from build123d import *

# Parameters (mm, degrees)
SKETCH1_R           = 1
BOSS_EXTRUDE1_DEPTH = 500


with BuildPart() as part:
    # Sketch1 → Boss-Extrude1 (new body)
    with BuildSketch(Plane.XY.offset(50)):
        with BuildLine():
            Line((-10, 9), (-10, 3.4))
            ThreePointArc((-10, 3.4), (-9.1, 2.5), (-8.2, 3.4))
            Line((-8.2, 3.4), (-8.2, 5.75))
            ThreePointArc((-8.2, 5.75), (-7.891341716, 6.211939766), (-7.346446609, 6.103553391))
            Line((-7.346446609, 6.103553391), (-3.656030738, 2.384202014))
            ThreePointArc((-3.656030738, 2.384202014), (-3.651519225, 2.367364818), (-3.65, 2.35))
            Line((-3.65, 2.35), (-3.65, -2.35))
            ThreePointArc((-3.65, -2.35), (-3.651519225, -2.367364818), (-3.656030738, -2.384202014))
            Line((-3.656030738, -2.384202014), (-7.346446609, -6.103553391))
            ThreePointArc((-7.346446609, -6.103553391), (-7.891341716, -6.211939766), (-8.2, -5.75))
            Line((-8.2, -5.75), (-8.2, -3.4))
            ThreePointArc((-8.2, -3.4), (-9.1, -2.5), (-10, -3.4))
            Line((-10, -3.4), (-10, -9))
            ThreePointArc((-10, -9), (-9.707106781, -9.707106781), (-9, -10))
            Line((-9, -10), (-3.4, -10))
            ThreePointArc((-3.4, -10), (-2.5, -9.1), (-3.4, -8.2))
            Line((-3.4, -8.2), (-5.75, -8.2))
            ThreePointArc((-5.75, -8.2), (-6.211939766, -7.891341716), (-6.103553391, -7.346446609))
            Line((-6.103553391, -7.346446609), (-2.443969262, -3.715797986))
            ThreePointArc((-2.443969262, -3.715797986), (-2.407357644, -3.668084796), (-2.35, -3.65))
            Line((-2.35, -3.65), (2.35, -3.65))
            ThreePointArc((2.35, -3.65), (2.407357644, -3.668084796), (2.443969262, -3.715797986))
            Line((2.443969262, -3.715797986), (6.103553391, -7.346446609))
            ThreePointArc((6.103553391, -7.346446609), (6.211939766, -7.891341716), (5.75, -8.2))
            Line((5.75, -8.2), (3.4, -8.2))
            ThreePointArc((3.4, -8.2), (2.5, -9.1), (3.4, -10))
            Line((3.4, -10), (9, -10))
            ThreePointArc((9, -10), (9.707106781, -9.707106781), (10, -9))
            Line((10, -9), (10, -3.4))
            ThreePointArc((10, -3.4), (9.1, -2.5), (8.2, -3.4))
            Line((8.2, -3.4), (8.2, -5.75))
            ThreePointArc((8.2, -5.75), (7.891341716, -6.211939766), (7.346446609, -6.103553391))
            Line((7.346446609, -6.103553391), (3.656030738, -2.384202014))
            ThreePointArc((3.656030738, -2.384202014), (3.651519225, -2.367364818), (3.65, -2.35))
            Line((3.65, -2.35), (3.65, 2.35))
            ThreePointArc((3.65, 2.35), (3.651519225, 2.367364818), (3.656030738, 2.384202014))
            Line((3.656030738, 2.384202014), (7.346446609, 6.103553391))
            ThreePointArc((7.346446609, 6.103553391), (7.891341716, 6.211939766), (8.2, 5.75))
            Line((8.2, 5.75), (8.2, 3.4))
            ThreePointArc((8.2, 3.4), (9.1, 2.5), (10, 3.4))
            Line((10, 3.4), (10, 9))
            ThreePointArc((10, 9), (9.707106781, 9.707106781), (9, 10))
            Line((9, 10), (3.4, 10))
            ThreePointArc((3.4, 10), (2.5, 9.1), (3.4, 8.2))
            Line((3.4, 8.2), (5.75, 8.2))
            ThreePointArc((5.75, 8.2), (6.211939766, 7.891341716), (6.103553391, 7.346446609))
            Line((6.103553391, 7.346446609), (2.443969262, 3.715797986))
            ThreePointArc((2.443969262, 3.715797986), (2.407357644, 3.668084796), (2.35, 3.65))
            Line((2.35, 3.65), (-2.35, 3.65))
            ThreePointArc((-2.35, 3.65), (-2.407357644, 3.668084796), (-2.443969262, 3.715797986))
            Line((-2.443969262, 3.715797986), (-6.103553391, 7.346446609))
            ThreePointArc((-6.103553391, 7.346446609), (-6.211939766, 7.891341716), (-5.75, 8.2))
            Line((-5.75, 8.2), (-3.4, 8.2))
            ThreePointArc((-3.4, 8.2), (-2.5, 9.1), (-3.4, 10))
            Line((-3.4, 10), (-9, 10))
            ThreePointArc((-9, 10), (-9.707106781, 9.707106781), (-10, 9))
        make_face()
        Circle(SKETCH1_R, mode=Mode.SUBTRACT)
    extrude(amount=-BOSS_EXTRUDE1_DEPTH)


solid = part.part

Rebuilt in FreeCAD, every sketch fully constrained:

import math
import FreeCAD as App
import Part
import Sketcher
from FreeCAD import Vector

doc = App.newDocument("Part")
params = doc.addObject("Spreadsheet::Sheet", "Params")
for row, (alias, value) in enumerate([
    ("sketch1_diameter", "2 mm"),
    ("sketch1_radius", "0.9 mm"),
    ("sketch1_radius2", "0.5 mm"),
    ("sketch1_radius3", "0.1 mm"),
    ("sketch1_width", "5.6 mm"),
    ("pad1_length", "500 mm"),
], start=1):
    params.set(f"A{row}", alias)
    params.set(f"B{row}", "=" + value)
    params.setAlias(f"B{row}", alias)

body = doc.addObject("PartDesign::Body", "Body")

# Sketch on XY plane
sketch1 = body.newObject("Sketcher::SketchObject", "Sketch")
sketch1.AttachmentSupport = (doc.getObject("XY_Plane"), [""])
sketch1.MapMode = "FlatFace"
sketch1.AttachmentOffset = App.Placement(Vector(0, 0, 50), App.Rotation())
sketch1.addGeometry([
    Part.LineSegment(Vector(-10, 9, 0), Vector(-10, 3.4, 0)),  # 0
    Part.ArcOfCircle(Part.Circle(Vector(-9.1, 3.4, 0), Vector(0, 0, 1), 0.9), math.radians(180), math.radians(360)),  # 1
    Part.LineSegment(Vector(-8.2, 3.4, 0), Vector(-8.2, 5.75, 0)),  # 2
    Part.ArcOfCircle(Part.Circle(Vector(-7.7, 5.75, 0), Vector(0, 0, 1), 0.5), math.radians(45), math.radians(180)),  # 3
    Part.LineSegment(Vector(-7.346447, 6.103553, 0), Vector(-3.656031, 2.384202, 0)),  # 4
    Part.ArcOfCircle(Part.Circle(Vector(-3.75, 2.35, 0), Vector(0, 0, 1), 0.1), math.radians(0.000001), math.radians(19.999999)),  # 5
    Part.LineSegment(Vector(-3.65, 2.35, 0), Vector(-3.65, -2.35, 0)),  # 6
    Part.ArcOfCircle(Part.Circle(Vector(-3.75, -2.35, 0), Vector(0, 0, 1), 0.1), math.radians(-19.999999), math.radians(-0.000001)),  # 7
    Part.LineSegment(Vector(-3.656031, -2.384202, 0), Vector(-7.346447, -6.103553, 0)),  # 8
    Part.ArcOfCircle(Part.Circle(Vector(-7.7, -5.75, 0), Vector(0, 0, 1), 0.5), math.radians(-180), math.radians(-45)),  # 9
    Part.LineSegment(Vector(-8.2, -5.75, 0), Vector(-8.2, -3.4, 0)),  # 10
    Part.ArcOfCircle(Part.Circle(Vector(-9.1, -3.4, 0), Vector(0, 0, 1), 0.9), math.radians(0), math.radians(180)),  # 11
    Part.LineSegment(Vector(-10, -3.4, 0), Vector(-10, -9, 0)),  # 12
    Part.ArcOfCircle(Part.Circle(Vector(-9, -9, 0), Vector(0, 0, 1), 1), math.radians(-180), math.radians(-90)),  # 13
    Part.LineSegment(Vector(-9, -10, 0), Vector(-3.4, -10, 0)),  # 14
    Part.ArcOfCircle(Part.Circle(Vector(-3.4, -9.1, 0), Vector(0, 0, 1), 0.9), math.radians(-90), math.radians(90)),  # 15
    Part.LineSegment(Vector(-3.4, -8.2, 0), Vector(-5.75, -8.2, 0)),  # 16
    Part.ArcOfCircle(Part.Circle(Vector(-5.75, -7.7, 0), Vector(0, 0, 1), 0.5), math.radians(135), math.radians(270)),  # 17
    Part.LineSegment(Vector(-6.103553, -7.346447, 0), Vector(-2.443969, -3.715798, 0)),  # 18
    Part.ArcOfCircle(Part.Circle(Vector(-2.35, -3.75, 0), Vector(0, 0, 1), 0.1), math.radians(90), math.radians(160)),  # 19
    Part.LineSegment(Vector(-2.35, -3.65, 0), Vector(2.35, -3.65, 0)),  # 20
    Part.ArcOfCircle(Part.Circle(Vector(2.35, -3.75, 0), Vector(0, 0, 1), 0.1), math.radians(20), math.radians(90)),  # 21
    Part.LineSegment(Vector(2.443969, -3.715798, 0), Vector(6.103553, -7.346447, 0)),  # 22
    Part.ArcOfCircle(Part.Circle(Vector(5.75, -7.7, 0), Vector(0, 0, 1), 0.5), math.radians(-90), math.radians(45)),  # 23
    Part.LineSegment(Vector(5.75, -8.2, 0), Vector(3.4, -8.2, 0)),  # 24
    Part.ArcOfCircle(Part.Circle(Vector(3.4, -9.1, 0), Vector(0, 0, 1), 0.9), math.radians(90), math.radians(270)),  # 25
    Part.LineSegment(Vector(3.4, -10, 0), Vector(9, -10, 0)),  # 26
    Part.ArcOfCircle(Part.Circle(Vector(9, -9, 0), Vector(0, 0, 1), 1), math.radians(-90), math.radians(0)),  # 27
    Part.LineSegment(Vector(10, -9, 0), Vector(10, -3.4, 0)),  # 28
    Part.ArcOfCircle(Part.Circle(Vector(9.1, -3.4, 0), Vector(0, 0, 1), 0.9), math.radians(0), math.radians(180)),  # 29
    Part.LineSegment(Vector(8.2, -3.4, 0), Vector(8.2, -5.75, 0)),  # 30
    Part.ArcOfCircle(Part.Circle(Vector(7.7, -5.75, 0), Vector(0, 0, 1), 0.5), math.radians(-135), math.radians(0)),  # 31
    Part.LineSegment(Vector(7.346447, -6.103553, 0), Vector(3.656031, -2.384202, 0)),  # 32
    Part.ArcOfCircle(Part.Circle(Vector(3.75, -2.35, 0), Vector(0, 0, 1), 0.1), math.radians(-179.999999), math.radians(-160.000001)),  # 33
    Part.LineSegment(Vector(3.65, -2.35, 0), Vector(3.65, 2.35, 0)),  # 34
    Part.ArcOfCircle(Part.Circle(Vector(3.75, 2.35, 0), Vector(0, 0, 1), 0.1), math.radians(160.000001), math.radians(179.999999)),  # 35
    Part.LineSegment(Vector(3.656031, 2.384202, 0), Vector(7.346447, 6.103553, 0)),  # 36
    Part.ArcOfCircle(Part.Circle(Vector(7.7, 5.75, 0), Vector(0, 0, 1), 0.5), math.radians(0), math.radians(135)),  # 37
    Part.LineSegment(Vector(8.2, 5.75, 0), Vector(8.2, 3.4, 0)),  # 38
    Part.ArcOfCircle(Part.Circle(Vector(9.1, 3.4, 0), Vector(0, 0, 1), 0.9), math.radians(180), math.radians(360)),  # 39
    Part.LineSegment(Vector(10, 3.4, 0), Vector(10, 9, 0)),  # 40
    Part.ArcOfCircle(Part.Circle(Vector(9, 9, 0), Vector(0, 0, 1), 1), math.radians(0), math.radians(90)),  # 41
    Part.LineSegment(Vector(9, 10, 0), Vector(3.4, 10, 0)),  # 42
    Part.ArcOfCircle(Part.Circle(Vector(3.4, 9.1, 0), Vector(0, 0, 1), 0.9), math.radians(90), math.radians(270)),  # 43
    Part.LineSegment(Vector(3.4, 8.2, 0), Vector(5.75, 8.2, 0)),  # 44
    Part.ArcOfCircle(Part.Circle(Vector(5.75, 7.7, 0), Vector(0, 0, 1), 0.5), math.radians(-45), math.radians(90)),  # 45
    Part.LineSegment(Vector(6.103553, 7.346447, 0), Vector(2.443969, 3.715798, 0)),  # 46
    Part.ArcOfCircle(Part.Circle(Vector(2.35, 3.75, 0), Vector(0, 0, 1), 0.1), math.radians(-90), math.radians(-20)),  # 47
    Part.LineSegment(Vector(2.35, 3.65, 0), Vector(-2.35, 3.65, 0)),  # 48
    Part.ArcOfCircle(Part.Circle(Vector(-2.35, 3.75, 0), Vector(0, 0, 1), 0.1), math.radians(-160), math.radians(-90)),  # 49
    Part.LineSegment(Vector(-2.443969, 3.715798, 0), Vector(-6.103553, 7.346447, 0)),  # 50
    Part.ArcOfCircle(Part.Circle(Vector(-5.75, 7.7, 0), Vector(0, 0, 1), 0.5), math.radians(90), math.radians(225)),  # 51
    Part.LineSegment(Vector(-5.75, 8.2, 0), Vector(-3.4, 8.2, 0)),  # 52
    Part.ArcOfCircle(Part.Circle(Vector(-3.4, 9.1, 0), Vector(0, 0, 1), 0.9), math.radians(-90), math.radians(90)),  # 53
    Part.LineSegment(Vector(-3.4, 10, 0), Vector(-9, 10, 0)),  # 54
    Part.ArcOfCircle(Part.Circle(Vector(-9, 9, 0), Vector(0, 0, 1), 1), math.radians(90), math.radians(180)),  # 55
    Part.Circle(Vector(0, 0, 0), Vector(0, 0, 1), 1),  # 56
], False)
sketch1.addConstraint([
    Sketcher.Constraint("Tangent", 0, 2, 1, 1),
    Sketcher.Constraint("Tangent", 1, 2, 2, 1),
    Sketcher.Constraint("Tangent", 2, 2, 3, 2),
    Sketcher.Constraint("Coincident", 3, 1, 4, 1),
    Sketcher.Constraint("Coincident", 4, 2, 5, 2),
    Sketcher.Constraint("Tangent", 5, 1, 6, 1),
    Sketcher.Constraint("Tangent", 6, 2, 7, 2),
    Sketcher.Constraint("Coincident", 7, 1, 8, 1),
    Sketcher.Constraint("Coincident", 8, 2, 9, 2),
    Sketcher.Constraint("Tangent", 9, 1, 10, 1),
    Sketcher.Constraint("Tangent", 10, 2, 11, 1),
    Sketcher.Constraint("Tangent", 11, 2, 12, 1),
    Sketcher.Constraint("Tangent", 12, 2, 13, 1),
    Sketcher.Constraint("Tangent", 13, 2, 14, 1),
    Sketcher.Constraint("Tangent", 14, 2, 15, 1),
    Sketcher.Constraint("Tangent", 15, 2, 16, 1),
    Sketcher.Constraint("Tangent", 16, 2, 17, 2),
    Sketcher.Constraint("Coincident", 17, 1, 18, 1),
    Sketcher.Constraint("Coincident", 18, 2, 19, 2),
    Sketcher.Constraint("Tangent", 19, 1, 20, 1),
    Sketcher.Constraint("Tangent", 20, 2, 21, 2),
    Sketcher.Constraint("Coincident", 21, 1, 22, 1),
    Sketcher.Constraint("Coincident", 22, 2, 23, 2),
    Sketcher.Constraint("Tangent", 23, 1, 24, 1),
    Sketcher.Constraint("Tangent", 24, 2, 25, 1),
    Sketcher.Constraint("Tangent", 25, 2, 26, 1),
    Sketcher.Constraint("Tangent", 26, 2, 27, 1),
    Sketcher.Constraint("Tangent", 27, 2, 28, 1),
    Sketcher.Constraint("Tangent", 28, 2, 29, 1),
    Sketcher.Constraint("Tangent", 29, 2, 30, 1),
    Sketcher.Constraint("Tangent", 30, 2, 31, 2),
    Sketcher.Constraint("Coincident", 31, 1, 32, 1),
    Sketcher.Constraint("Coincident", 32, 2, 33, 2),
    Sketcher.Constraint("Tangent", 33, 1, 34, 1),
    Sketcher.Constraint("Tangent", 34, 2, 35, 2),
    Sketcher.Constraint("Coincident", 35, 1, 36, 1),
    Sketcher.Constraint("Coincident", 36, 2, 37, 2),
    Sketcher.Constraint("Tangent", 37, 1, 38, 1),
    Sketcher.Constraint("Tangent", 38, 2, 39, 1),
    Sketcher.Constraint("Tangent", 39, 2, 40, 1),
    Sketcher.Constraint("Tangent", 40, 2, 41, 1),
    Sketcher.Constraint("Tangent", 41, 2, 42, 1),
    Sketcher.Constraint("Tangent", 42, 2, 43, 1),
    Sketcher.Constraint("Tangent", 43, 2, 44, 1),
    Sketcher.Constraint("Tangent", 44, 2, 45, 2),
    Sketcher.Constraint("Coincident", 45, 1, 46, 1),
    Sketcher.Constraint("Coincident", 46, 2, 47, 2),
    Sketcher.Constraint("Tangent", 47, 1, 48, 1),
    Sketcher.Constraint("Tangent", 48, 2, 49, 2),
    Sketcher.Constraint("Coincident", 49, 1, 50, 1),
    Sketcher.Constraint("Coincident", 50, 2, 51, 2),
    Sketcher.Constraint("Tangent", 51, 1, 52, 1),
    Sketcher.Constraint("Tangent", 52, 2, 53, 1),
    Sketcher.Constraint("Tangent", 53, 2, 54, 1),
    Sketcher.Constraint("Tangent", 54, 2, 55, 1),
    Sketcher.Constraint("Tangent", 55, 2, 0, 1),
    Sketcher.Constraint("Vertical", 0),
    Sketcher.Constraint("Vertical", 2),
    Sketcher.Constraint("Vertical", 6),
    Sketcher.Constraint("Vertical", 10),
    Sketcher.Constraint("Vertical", 12),
    Sketcher.Constraint("Horizontal", 14),
    Sketcher.Constraint("Horizontal", 16),
    Sketcher.Constraint("Horizontal", 20),
    Sketcher.Constraint("Horizontal", 24),
    Sketcher.Constraint("Horizontal", 26),
    Sketcher.Constraint("Vertical", 28),
    Sketcher.Constraint("Vertical", 30),
    Sketcher.Constraint("Vertical", 34),
    Sketcher.Constraint("Vertical", 38),
    Sketcher.Constraint("Vertical", 40),
    Sketcher.Constraint("Horizontal", 42),
    Sketcher.Constraint("Horizontal", 44),
    Sketcher.Constraint("Horizontal", 48),
    Sketcher.Constraint("Horizontal", 52),
    Sketcher.Constraint("Horizontal", 54),
    Sketcher.Constraint("Coincident", 56, 3, -1, 1),
    Sketcher.Constraint("Equal", 5, 7),
    Sketcher.Constraint("Equal", 3, 9),
    Sketcher.Constraint("Equal", 1, 11),
    Sketcher.Constraint("Equal", 11, 15),
    Sketcher.Constraint("Equal", 9, 17),
    Sketcher.Constraint("Equal", 7, 19),
    Sketcher.Constraint("Equal", 19, 21),
    Sketcher.Constraint("Equal", 17, 23),
    Sketcher.Constraint("Equal", 15, 25),
    Sketcher.Constraint("Equal", 13, 27),
    Sketcher.Constraint("Equal", 25, 29),
    Sketcher.Constraint("Equal", 23, 31),
    Sketcher.Constraint("Equal", 21, 33),
    Sketcher.Constraint("Equal", 33, 35),
    Sketcher.Constraint("Equal", 31, 37),
    Sketcher.Constraint("Equal", 29, 39),
    Sketcher.Constraint("Equal", 27, 41),
    Sketcher.Constraint("Equal", 39, 43),
    Sketcher.Constraint("Equal", 37, 45),
    Sketcher.Constraint("Equal", 35, 47),
    Sketcher.Constraint("Equal", 47, 49),
    Sketcher.Constraint("Equal", 45, 51),
    Sketcher.Constraint("Equal", 43, 53),
    Sketcher.Constraint("Equal", 41, 55),
    Sketcher.Constraint("Equal", 55, 56),
    Sketcher.Constraint("Symmetric", 1, 3, 29, 3, -1, 1),
    Sketcher.Constraint("Symmetric", 5, 3, 33, 3, -1, 1),
    Sketcher.Constraint("Symmetric", 9, 3, 37, 3, -1, 1),
    Sketcher.Constraint("Symmetric", 15, 3, 43, 3, -1, 1),
    Sketcher.Constraint("Symmetric", 19, 3, 47, 3, -1, 1),
    Sketcher.Constraint("Symmetric", 23, 3, 51, 3, -1, 1),
    Sketcher.Constraint("Symmetric", 3, 1, 31, 1, -1, 1),
    Sketcher.Constraint("Symmetric", 7, 1, 35, 1, -1, 1),
    Sketcher.Constraint("Symmetric", 17, 1, 45, 1, -1, 1),
    Sketcher.Constraint("Symmetric", 21, 1, 49, 1, -1, 1),
    Sketcher.Constraint("Symmetric", 17, 3, 23, 3, -2),
    Sketcher.Constraint("Symmetric", 11, 3, 29, 3, -2),
    Sketcher.Constraint("Symmetric", 18, 2, 21, 1, -2),
    Sketcher.Constraint("Symmetric", 8, 2, 31, 1, -2),
    Sketcher.Constraint("Symmetric", 7, 1, 32, 2, -2),
    Sketcher.Constraint("Parallel", 4, 32),
    Sketcher.Constraint("Parallel", 18, 46),
    Sketcher.Constraint("Horizontal", 1, 3, 39, 3),
    Sketcher.Constraint("Horizontal", 17, 1, 22, 2),
    Sketcher.Constraint("Horizontal", 3, 1, 36, 2),
    Sketcher.Constraint("Horizontal", 45, 1, 50, 2),
    Sketcher.Constraint("Vertical", 25, 3, 43, 3),
    Sketcher.Constraint("Vertical", 15, 3, 53, 3),
    Sketcher.Constraint("Equal", 54, 0),
    Sketcher.Constraint("Equal", 52, 2),
    Sketcher.Constraint("Equal", 48, 6),
    Sketcher.Constraint("Diameter", 56, 2.0),
    Sketcher.Constraint("Radius", 1, 0.9),
    Sketcher.Constraint("Radius", 3, 0.5),
    Sketcher.Constraint("Radius", 5, 0.1),
    Sketcher.Constraint("DistanceX", 14, 1, 14, 2, 5.6),
    Sketcher.Constraint("DistanceX", 20, 1, 20, 2, 4.7),
    Sketcher.Constraint("DistanceX", 13, 3, -1, 1, 9.0),
    Sketcher.Constraint("DistanceY", 13, 3, -1, 1, 9.0),
    Sketcher.Constraint("DistanceX", 16, 2, 16, 1, 2.35),
    Sketcher.Constraint("DistanceX", 5, 3, -1, 1, 3.75),
    Sketcher.Constraint("DistanceY", 19, 3, -1, 1, 3.75),
    Sketcher.Constraint("DistanceX", 4, 2, -1, 1, 3.656031),
    Sketcher.Constraint("DistanceX", 18, 2, -1, 1, 2.443969),
    Sketcher.Constraint("Distance", 4, 5.239537),
    Sketcher.Constraint("Distance", 18, 5.155014),
])
sketch1.setExpression("Constraints[128]", "Params.sketch1_diameter")
sketch1.setExpression("Constraints[129]", "Params.sketch1_radius")
sketch1.setExpression("Constraints[130]", "Params.sketch1_radius2")
sketch1.setExpression("Constraints[131]", "Params.sketch1_radius3")
sketch1.setExpression("Constraints[132]", "Params.sketch1_width")
pad1 = body.newObject("PartDesign::Pad", "Pad")
pad1.Profile = sketch1
pad1.setExpression("Length", "Params.pad1_length")
pad1.Reversed = True

doc.recompute()
